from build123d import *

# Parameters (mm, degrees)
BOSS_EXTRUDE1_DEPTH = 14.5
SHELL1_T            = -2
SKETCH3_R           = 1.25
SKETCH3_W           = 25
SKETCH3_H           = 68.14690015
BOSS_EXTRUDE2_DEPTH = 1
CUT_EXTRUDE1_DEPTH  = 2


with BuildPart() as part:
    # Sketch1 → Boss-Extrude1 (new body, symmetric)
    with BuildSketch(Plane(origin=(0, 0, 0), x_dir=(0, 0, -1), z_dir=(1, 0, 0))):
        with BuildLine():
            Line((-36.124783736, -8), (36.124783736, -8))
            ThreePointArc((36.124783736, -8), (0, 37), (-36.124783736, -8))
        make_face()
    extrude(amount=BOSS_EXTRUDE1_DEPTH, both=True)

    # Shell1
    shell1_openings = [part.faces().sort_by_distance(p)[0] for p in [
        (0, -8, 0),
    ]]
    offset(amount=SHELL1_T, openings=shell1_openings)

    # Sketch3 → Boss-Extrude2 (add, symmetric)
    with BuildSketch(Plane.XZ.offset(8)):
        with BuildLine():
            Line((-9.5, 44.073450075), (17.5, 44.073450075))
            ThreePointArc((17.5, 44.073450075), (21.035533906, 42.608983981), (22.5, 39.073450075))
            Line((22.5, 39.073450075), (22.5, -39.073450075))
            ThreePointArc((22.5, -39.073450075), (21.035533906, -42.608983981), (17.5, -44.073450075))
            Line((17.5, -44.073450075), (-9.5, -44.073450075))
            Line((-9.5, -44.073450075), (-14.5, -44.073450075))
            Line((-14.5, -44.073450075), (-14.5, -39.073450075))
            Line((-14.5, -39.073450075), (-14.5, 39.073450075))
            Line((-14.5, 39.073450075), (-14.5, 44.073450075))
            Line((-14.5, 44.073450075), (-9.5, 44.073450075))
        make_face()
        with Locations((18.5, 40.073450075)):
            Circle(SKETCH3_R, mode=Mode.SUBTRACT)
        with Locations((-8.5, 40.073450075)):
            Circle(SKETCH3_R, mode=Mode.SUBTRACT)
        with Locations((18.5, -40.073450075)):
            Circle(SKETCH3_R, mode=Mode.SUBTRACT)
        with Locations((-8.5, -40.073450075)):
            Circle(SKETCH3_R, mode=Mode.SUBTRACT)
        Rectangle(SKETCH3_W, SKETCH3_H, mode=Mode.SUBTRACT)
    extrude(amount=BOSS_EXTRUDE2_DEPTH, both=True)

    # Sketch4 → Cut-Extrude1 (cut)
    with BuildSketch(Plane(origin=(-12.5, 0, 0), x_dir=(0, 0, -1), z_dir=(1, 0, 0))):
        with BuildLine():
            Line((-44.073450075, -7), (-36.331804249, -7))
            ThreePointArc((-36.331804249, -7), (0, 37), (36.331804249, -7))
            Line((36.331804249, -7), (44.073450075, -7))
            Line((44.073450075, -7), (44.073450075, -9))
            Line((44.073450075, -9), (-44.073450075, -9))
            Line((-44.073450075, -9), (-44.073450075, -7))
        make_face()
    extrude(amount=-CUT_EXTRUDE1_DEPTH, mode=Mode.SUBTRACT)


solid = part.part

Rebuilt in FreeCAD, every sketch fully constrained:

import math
import FreeCAD as App
import Part
import Sketcher
Q = App.Units.Quantity


def faces_at(feature, points):
    """Names of the faces that lie closest to the given points."""
    faces = feature.Shape.Faces
    near = lambda p: min(range(len(faces)), key=lambda i: faces[i].distToShape(Part.Vertex(*p))[0])
    return sorted({f"Face{near(p) + 1}" for p in points})


def add_polygon(sketch, points):
    """Adds a closed chain of lines whose ends are joined by coincident constraints."""
    first, n = sketch.GeometryCount, len(points)
    for a, b in zip(points, points[1:] + points[:1]):
        sketch.addGeometry(Part.LineSegment(App.Vector(*a, 0), App.Vector(*b, 0)), False)
    for i in range(n):
        sketch.addConstraint(Sketcher.Constraint("Coincident", first + i, 2, first + (i + 1) % n, 1))

doc = App.newDocument("Part")
body = doc.addObject("PartDesign::Body", "Body")

sketch1 = body.newObject("Sketcher::SketchObject", "Sketch")
sketch1.AttachmentSupport = (doc.getObject("YZ_Plane"), [""])
sketch1.MapMode = "FlatFace"
sketch1.addGeometry(Part.LineSegment(App.Vector(-8, 36.124784, 0), App.Vector(-8, -36.124784, 0)), False)
sketch1.addGeometry(Part.ArcOfCircle(Part.Circle(App.Vector(0, 0, 0), App.Vector(0, 0, 1), 37), math.radians(-102.48689), math.radians(102.48689)), False)
sketch1.addConstraint(Sketcher.Constraint("Coincident", 0, 1, 1, 2))
sketch1.addConstraint(Sketcher.Constraint("Coincident", 1, 1, 0, 2))
sketch1.addConstraint(Sketcher.Constraint("Vertical", 0))
sketch1.addConstraint(Sketcher.Constraint("Coincident", 1, 3, -1, 1))
sketch1.addConstraint(Sketcher.Constraint("Radius", 1, Q("37 mm")))
sketch1.addConstraint(Sketcher.Constraint("DistanceX", 0, 1, -1, 1, Q("8 mm")))
pad1 = body.newObject("PartDesign::Pad", "Pad")
pad1.Profile = sketch1
pad1.Length = 29
pad1.Midplane = True
doc.recompute()

thickness = body.newObject("PartDesign::Thickness", "Thickness")
thickness.Base = (pad1, faces_at(pad1, [(0, -8, 0)]))
thickness.Value = 2
thickness.Reversed = True
thickness.Join = "Arc"

sketch2 = body.newObject("Sketcher::SketchObject", "Sketch001")
sketch2.AttachmentSupport = (doc.getObject("XZ_Plane"), [""])
sketch2.MapMode = "FlatFace"
sketch2.AttachmentOffset = App.Placement(App.Vector(0, 0, 8), App.Rotation())
sketch2.addGeometry(Part.ArcOfCircle(Part.Circle(App.Vector(17.5, 39.07345, 0), App.Vector(0, 0, 1), 5), math.radians(0), math.radians(90)), False)
sketch2.addGeometry(Part.LineSegment(App.Vector(17.5, 44.07345, 0), App.Vector(-14.5, 44.07345, 0)), False)
sketch2.addGeometry(Part.LineSegment(App.Vector(-14.5, 44.07345, 0), App.Vector(-14.5, -44.07345, 0)), False)
sketch2.addGeometry(Part.LineSegment(App.Vector(-14.5, -44.07345, 0), App.Vector(17.5, -44.07345, 0)), False)
sketch2.addGeometry(Part.ArcOfCircle(Part.Circle(App.Vector(17.5, -39.07345, 0), App.Vector(0, 0, 1), 5), math.radians(-90), math.radians(0)), False)
sketch2.addGeometry(Part.LineSegment(App.Vector(22.5, -39.07345, 0), App.Vector(22.5, 39.07345, 0)), False)
sketch2.addGeometry(Part.Circle(App.Vector(18.5, -40.07345, 0), App.Vector(0, 0, 1), 1.25), False)
sketch2.addGeometry(Part.Circle(App.Vector(-8.5, -40.07345, 0), App.Vector(0, 0, 1), 1.25), False)
sketch2.addGeometry(Part.Circle(App.Vector(18.5, 40.07345, 0), App.Vector(0, 0, 1), 1.25), False)
add_polygon(sketch2, [(-12.5, -34.07345), (-12.5, 34.07345), (12.5, 34.07345), (12.5, -34.07345)])
sketch2.addGeometry(Part.Circle(App.Vector(-8.5, 40.07345, 0), App.Vector(0, 0, 1), 1.25), False)
sketch2.addConstraint(Sketcher.Constraint("Tangent", 0, 2, 1, 1))
sketch2.addConstraint(Sketcher.Constraint("Coincident", 1, 2, 2, 1))
sketch2.addConstraint(Sketcher.Constraint("Coincident", 2, 2, 3, 1))
sketch2.addConstraint(Sketcher.Constraint("Tangent", 3, 2, 4, 1))
sketch2.addConstraint(Sketcher.Constraint("Tangent", 4, 2, 5, 1))
sketch2.addConstraint(Sketcher.Constraint("Tangent", 5, 2, 0, 1))
sketch2.addConstraint(Sketcher.Constraint("Horizontal", 1))
sketch2.addConstraint(Sketcher.Constraint("Vertical", 2))
sketch2.addConstraint(Sketcher.Constraint("Horizontal", 3))
sketch2.addConstraint(Sketcher.Constraint("Vertical", 5))
sketch2.addConstraint(Sketcher.Constraint("Vertical", 9))
sketch2.addConstraint(Sketcher.Constraint("Horizontal", 10))
sketch2.addConstraint(Sketcher.Constraint("Vertical", 11))
sketch2.addConstraint(Sketcher.Constraint("Horizontal", 12))
sketch2.addConstraint(Sketcher.Constraint("Equal", 0, 4))
sketch2.addConstraint(Sketcher.Constraint("Equal", 6, 7))
sketch2.addConstraint(Sketcher.Constraint("Equal", 7, 8))
sketch2.addConstraint(Sketcher.Constraint("Equal", 8, 13))
sketch2.addConstraint(Sketcher.Constraint("Symmetric", 9, 2, 11, 2, -1, 1))
sketch2.addConstraint(Sketcher.Constraint("Symmetric", 6, 3, 8, 3, -1))
sketch2.addConstraint(Sketcher.Constraint("Symmetric", 7, 3, 13, 3, -1))
sketch2.addConstraint(Sketcher.Constraint("Horizontal", 6, 3, 7, 3))
sketch2.addConstraint(Sketcher.Constraint("Radius", 0, Q("5 mm")))
sketch2.addConstraint(Sketcher.Constraint("Diameter", 6, Q("2.5 mm")))
sketch2.addConstraint(Sketcher.Constraint("DistanceX", 1, 2, 1, 1, Q("32 mm")))
sketch2.addConstraint(Sketcher.Constraint("DistanceX", 10, 1, 10, 2, Q("25 mm")))
sketch2.addConstraint(Sketcher.Constraint("DistanceX", 4, 3, 6, 3, Q("1 mm")))
sketch2.addConstraint(Sketcher.Constraint("DistanceY", 6, 3, 4, 3, Q("1 mm")))
sketch2.addConstraint(Sketcher.Constraint("DistanceX", 7, 3, 4, 3, Q("26 mm")))
sketch2.addConstraint(Sketcher.Constraint("DistanceY", 0, 3, 8, 3, Q("1 mm")))
sketch2.addConstraint(Sketcher.Constraint("DistanceX", 9, 2, 13, 3, Q("4 mm")))
sketch2.addConstraint(Sketcher.Constraint("DistanceY", 9, 2, 13, 3, Q("6 mm")))
sketch2.addConstraint(Sketcher.Constraint("DistanceY", 2, 2, 2, 1, Q("88.1469 mm")))
pad2 = body.newObject("PartDesign::Pad", "Pad001")
pad2.Profile = sketch2
pad2.Length = 2
pad2.Midplane = True

sketch3 = body.newObject("Sketcher::SketchObject", "Sketch002")
sketch3.AttachmentSupport = (doc.getObject("YZ_Plane"), [""])
sketch3.MapMode = "FlatFace"
sketch3.AttachmentOffset = App.Placement(App.Vector(0, 0, -12.5), App.Rotation())
sketch3.addGeometry(Part.LineSegment(App.Vector(-7, 36.331804, 0), App.Vector(-7, 44.07345, 0)), False)
sketch3.addGeometry(Part.LineSegment(App.Vector(-7, 44.07345, 0), App.Vector(-9, 44.07345, 0)), False)
sketch3.addGeometry(Part.LineSegment(App.Vector(-9, 44.07345, 0), App.Vector(-9, -44.07345, 0)), False)
sketch3.addGeometry(Part.LineSegment(App.Vector(-9, -44.07345, 0), App.Vector(-7, -44.07345, 0)), False)
sketch3.addGeometry(Part.LineSegment(App.Vector(-7, -44.07345, 0), App.Vector(-7, -36.331804, 0)), False)
sketch3.addGeometry(Part.ArcOfCircle(Part.Circle(App.Vector(0, 0, 0), App.Vector(0, 0, 1), 37), math.radians(-100.90547), math.radians(100.90547)), False)
sketch3.addConstraint(Sketcher.Constraint("Coincident", 0, 2, 1, 1))
sketch3.addConstraint(Sketcher.Constraint("Coincident", 1, 2, 2, 1))
sketch3.addConstraint(Sketcher.Constraint("Coincident", 2, 2, 3, 1))
sketch3.addConstraint(Sketcher.Constraint("Coincident", 3, 2, 4, 1))
sketch3.addConstraint(Sketcher.Constraint("Coincident", 4, 2, 5, 1))
sketch3.addConstraint(Sketcher.Constraint("Coincident", 5, 2, 0, 1))
sketch3.addConstraint(Sketcher.Constraint("Vertical", 0))
sketch3.addConstraint(Sketcher.Constraint("Horizontal", 1))
sketch3.addConstraint(Sketcher.Constraint("Vertical", 2))
sketch3.addConstraint(Sketcher.Constraint("Horizontal", 3))
sketch3.addConstraint(Sketcher.Constraint("Vertical", 4))
sketch3.addConstraint(Sketcher.Constraint("Coincident", 5, 3, -1, 1))
sketch3.addConstraint(Sketcher.Constraint("Symmetric", 0, 2, 3, 2, -1))
sketch3.addConstraint(Sketcher.Constraint("Radius", 5, Q("37 mm")))
sketch3.addConstraint(Sketcher.Constraint("DistanceX", 1, 2, 1, 1, Q("2 mm")))
sketch3.addConstraint(Sketcher.Constraint("DistanceX", 0, 2, -1, 1, Q("7 mm")))
sketch3.addConstraint(Sketcher.Constraint("DistanceY", 2, 2, 2, 1, Q("88.1469 mm")))
pocket1 = body.newObject("PartDesign::Pocket", "Pocket")
pocket1.Profile = sketch3
pocket1.Length = 2

doc.recompute()
